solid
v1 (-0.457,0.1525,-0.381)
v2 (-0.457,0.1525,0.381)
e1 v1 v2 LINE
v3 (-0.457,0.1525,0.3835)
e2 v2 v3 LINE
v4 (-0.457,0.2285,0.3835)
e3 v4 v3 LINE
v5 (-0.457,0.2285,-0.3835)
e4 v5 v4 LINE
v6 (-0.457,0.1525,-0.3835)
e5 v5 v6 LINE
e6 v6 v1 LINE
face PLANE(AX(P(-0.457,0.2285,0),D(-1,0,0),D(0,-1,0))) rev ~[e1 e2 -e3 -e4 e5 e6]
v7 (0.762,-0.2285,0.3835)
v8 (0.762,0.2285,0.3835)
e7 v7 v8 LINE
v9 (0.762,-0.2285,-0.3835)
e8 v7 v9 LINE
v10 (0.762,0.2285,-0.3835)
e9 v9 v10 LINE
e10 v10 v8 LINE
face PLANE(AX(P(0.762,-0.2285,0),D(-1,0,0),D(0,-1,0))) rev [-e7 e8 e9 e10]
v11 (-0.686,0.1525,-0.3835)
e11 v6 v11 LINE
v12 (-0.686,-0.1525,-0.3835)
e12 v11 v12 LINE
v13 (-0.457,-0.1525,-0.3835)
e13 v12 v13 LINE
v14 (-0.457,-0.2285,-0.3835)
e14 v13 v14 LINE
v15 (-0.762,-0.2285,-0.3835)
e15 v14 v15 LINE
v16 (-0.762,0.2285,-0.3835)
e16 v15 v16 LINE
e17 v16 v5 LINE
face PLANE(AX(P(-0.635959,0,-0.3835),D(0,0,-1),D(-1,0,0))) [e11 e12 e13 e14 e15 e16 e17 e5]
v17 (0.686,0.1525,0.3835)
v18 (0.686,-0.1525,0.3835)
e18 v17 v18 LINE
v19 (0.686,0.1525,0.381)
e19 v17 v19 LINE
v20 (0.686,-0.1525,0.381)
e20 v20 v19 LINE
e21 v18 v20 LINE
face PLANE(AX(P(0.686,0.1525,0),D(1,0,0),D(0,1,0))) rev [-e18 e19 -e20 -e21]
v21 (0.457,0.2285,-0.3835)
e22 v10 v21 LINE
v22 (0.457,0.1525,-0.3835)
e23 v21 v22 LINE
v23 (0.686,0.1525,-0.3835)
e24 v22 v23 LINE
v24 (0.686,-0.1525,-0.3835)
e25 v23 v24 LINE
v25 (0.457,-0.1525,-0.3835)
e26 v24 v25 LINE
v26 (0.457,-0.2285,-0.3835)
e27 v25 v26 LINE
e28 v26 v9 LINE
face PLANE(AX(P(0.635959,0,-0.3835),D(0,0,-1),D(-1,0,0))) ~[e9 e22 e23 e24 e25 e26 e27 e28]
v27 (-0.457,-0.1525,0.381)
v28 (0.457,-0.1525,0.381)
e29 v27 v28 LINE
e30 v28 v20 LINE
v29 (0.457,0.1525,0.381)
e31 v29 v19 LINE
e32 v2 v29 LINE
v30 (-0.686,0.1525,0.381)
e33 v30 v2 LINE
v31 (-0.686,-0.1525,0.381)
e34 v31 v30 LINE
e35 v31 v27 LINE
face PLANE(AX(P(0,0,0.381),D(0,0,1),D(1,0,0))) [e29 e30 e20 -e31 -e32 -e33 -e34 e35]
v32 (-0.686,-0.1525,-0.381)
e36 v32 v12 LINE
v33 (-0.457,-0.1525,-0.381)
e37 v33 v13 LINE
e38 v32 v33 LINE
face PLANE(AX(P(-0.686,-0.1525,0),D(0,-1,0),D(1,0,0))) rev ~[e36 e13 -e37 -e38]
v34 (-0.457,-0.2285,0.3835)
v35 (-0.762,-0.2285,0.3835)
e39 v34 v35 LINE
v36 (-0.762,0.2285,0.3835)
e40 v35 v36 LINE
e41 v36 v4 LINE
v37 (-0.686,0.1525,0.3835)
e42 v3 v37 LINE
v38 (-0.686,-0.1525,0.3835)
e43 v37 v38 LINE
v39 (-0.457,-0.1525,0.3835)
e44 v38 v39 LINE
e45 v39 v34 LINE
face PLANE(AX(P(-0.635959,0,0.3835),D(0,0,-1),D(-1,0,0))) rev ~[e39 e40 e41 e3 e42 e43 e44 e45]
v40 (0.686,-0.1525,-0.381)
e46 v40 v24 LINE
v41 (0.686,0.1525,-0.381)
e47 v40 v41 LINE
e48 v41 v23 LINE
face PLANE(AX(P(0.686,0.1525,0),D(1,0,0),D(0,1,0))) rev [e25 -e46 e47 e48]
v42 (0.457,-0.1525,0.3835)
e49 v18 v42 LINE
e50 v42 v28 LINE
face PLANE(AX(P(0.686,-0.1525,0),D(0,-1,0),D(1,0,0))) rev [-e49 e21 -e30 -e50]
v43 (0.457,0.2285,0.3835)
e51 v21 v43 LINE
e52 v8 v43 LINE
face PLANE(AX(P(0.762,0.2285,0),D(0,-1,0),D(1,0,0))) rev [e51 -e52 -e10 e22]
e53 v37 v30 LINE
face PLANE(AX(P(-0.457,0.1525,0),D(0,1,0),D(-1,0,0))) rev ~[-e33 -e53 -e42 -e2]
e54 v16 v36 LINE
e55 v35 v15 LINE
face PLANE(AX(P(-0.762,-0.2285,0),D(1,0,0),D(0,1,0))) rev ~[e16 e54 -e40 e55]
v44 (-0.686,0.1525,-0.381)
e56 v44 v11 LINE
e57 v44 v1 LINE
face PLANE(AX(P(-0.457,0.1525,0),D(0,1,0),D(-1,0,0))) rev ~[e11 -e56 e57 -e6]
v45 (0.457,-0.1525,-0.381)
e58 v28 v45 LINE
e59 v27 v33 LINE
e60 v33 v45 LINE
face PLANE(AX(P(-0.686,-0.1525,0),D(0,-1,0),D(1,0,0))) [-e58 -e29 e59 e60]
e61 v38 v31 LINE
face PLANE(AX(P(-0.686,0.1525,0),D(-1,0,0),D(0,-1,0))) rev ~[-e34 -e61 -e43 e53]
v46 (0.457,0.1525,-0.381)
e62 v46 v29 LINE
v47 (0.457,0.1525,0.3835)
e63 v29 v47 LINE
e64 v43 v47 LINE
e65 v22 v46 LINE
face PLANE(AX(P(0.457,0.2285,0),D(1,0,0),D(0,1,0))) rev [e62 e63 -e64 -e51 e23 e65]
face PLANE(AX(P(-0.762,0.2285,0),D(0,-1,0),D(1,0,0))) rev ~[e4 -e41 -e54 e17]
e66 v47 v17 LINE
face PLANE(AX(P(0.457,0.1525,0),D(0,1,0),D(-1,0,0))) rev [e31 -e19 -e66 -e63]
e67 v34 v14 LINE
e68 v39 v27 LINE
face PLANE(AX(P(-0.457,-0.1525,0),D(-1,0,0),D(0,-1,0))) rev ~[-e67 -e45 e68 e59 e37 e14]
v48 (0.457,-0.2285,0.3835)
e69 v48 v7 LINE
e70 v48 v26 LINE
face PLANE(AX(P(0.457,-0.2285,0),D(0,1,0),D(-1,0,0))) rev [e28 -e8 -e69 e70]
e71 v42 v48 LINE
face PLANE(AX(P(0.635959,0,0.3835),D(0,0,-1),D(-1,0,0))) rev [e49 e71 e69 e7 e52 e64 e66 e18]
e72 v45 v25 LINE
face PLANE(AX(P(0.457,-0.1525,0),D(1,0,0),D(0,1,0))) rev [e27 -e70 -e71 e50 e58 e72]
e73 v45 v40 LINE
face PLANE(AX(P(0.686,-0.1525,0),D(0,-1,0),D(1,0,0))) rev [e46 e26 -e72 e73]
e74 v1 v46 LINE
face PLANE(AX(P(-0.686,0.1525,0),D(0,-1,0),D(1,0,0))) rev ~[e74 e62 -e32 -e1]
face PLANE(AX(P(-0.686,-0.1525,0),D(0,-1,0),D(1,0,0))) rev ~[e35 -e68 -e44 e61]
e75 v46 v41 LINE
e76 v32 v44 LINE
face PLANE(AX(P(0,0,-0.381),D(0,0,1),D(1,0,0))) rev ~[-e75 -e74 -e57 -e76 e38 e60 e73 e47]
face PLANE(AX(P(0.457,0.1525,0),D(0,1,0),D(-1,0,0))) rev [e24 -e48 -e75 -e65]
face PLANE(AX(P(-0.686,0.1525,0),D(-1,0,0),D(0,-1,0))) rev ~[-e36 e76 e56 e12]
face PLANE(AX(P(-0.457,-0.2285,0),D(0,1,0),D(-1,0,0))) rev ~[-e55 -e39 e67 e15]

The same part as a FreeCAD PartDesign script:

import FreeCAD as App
import Part
import Sketcher

V = App.Vector
Q = App.Units.Quantity


def add_polygon(sketch, points):
    """Adds a closed chain of lines whose ends are joined by coincident constraints."""
    first, n = sketch.GeometryCount, len(points)
    for a, b in zip(points, points[1:] + points[:1]):
        sketch.addGeometry(Part.LineSegment(App.Vector(*a, 0), App.Vector(*b, 0)), False)
    for i in range(n):
        sketch.addConstraint(Sketcher.Constraint("Coincident", first + i, 2, first + (i + 1) % n, 1))

doc = App.newDocument("Part")
body = doc.addObject("PartDesign::Body", "Body")

# Sketch on XY plane
sketch1 = doc.addObject("Sketcher::SketchObject", "Sketch")
body.addObject(sketch1)
sketch1.AttachmentSupport = (doc.XY_Plane, [""])
sketch1.MapMode = "FlatFace"
add_polygon(sketch1, [(-0.69, 0.15), (-0.69, -0.15), (0.69, -0.15), (0.69, 0.15)])  # lines 0-3
sketch1.addConstraint(Sketcher.Constraint("Vertical", 0))
sketch1.addConstraint(Sketcher.Constraint("Horizontal", 1))
sketch1.addConstraint(Sketcher.Constraint("Vertical", 2))
sketch1.addConstraint(Sketcher.Constraint("Horizontal", 3))
sketch1.addConstraint(Sketcher.Constraint("Symmetric", 0, 2, 2, 2, -1, 1))
sketch1.addConstraint(Sketcher.Constraint("DistanceX", 1, 1, 1, 2, Q("1.372 mm")))
sketch1.addConstraint(Sketcher.Constraint("DistanceY", 0, 2, 0, 1, Q("0.305 mm")))
pad1 = doc.addObject("PartDesign::Pad", "Pad")
body.addObject(pad1)
pad1.Profile = sketch1
pad1.Length = Q("0.03 in")
pad1.Midplane = True

# Sketch on XY plane
sketch2 = doc.addObject("Sketcher::SketchObject", "Sketch001")
body.addObject(sketch2)
sketch2.AttachmentSupport = (doc.XY_Plane, [""])
sketch2.MapMode = "FlatFace"
add_polygon(sketch2, [(-0.69, 0.15), (-0.46, 0.15), (-0.46, 0.23), (-0.76, 0.23), (-0.76, -0.23), (-0.46, -0.23), (-0.46, -0.15), (-0.69, -0.15)])  # lines 0-7
sketch2.addConstraint(Sketcher.Constraint("Horizontal", 0))
sketch2.addConstraint(Sketcher.Constraint("Vertical", 1))
sketch2.addConstraint(Sketcher.Constraint("Horizontal", 2))
sketch2.addConstraint(Sketcher.Constraint("Vertical", 3))
sketch2.addConstraint(Sketcher.Constraint("Horizontal", 4))
sketch2.addConstraint(Sketcher.Constraint("Vertical", 5))
sketch2.addConstraint(Sketcher.Constraint("Horizontal", 6))
sketch2.addConstraint(Sketcher.Constraint("Vertical", 7))
sketch2.addConstraint(Sketcher.Constraint("Symmetric", 1, 2, 4, 2, -1))
sketch2.addConstraint(Sketcher.Constraint("Equal", 1, 5))
sketch2.addConstraint(Sketcher.Constraint("Equal", 4, 7))
sketch2.addConstraint(Sketcher.Constraint("DistanceX", 2, 2, -1, 1, Q("0.03 in")))
sketch2.addConstraint(Sketcher.Constraint("DistanceY", 3, 2, 0, 2, Q("0.015 in")))
sketch2.addConstraint(Sketcher.Constraint("DistanceX", 0, 1, 0, 2, Q("0.229 mm")))
sketch2.addConstraint(Sketcher.Constraint("DistanceX", 2, 2, 2, 1, Q("0.305 mm")))
pad2 = doc.addObject("PartDesign::Pad", "Pad001")
body.addObject(pad2)
pad2.Profile = sketch2
pad2.Length = 0.767
pad2.Midplane = True
doc.recompute()

mirrored = doc.addObject("PartDesign::Mirrored", "Mirrored")
body.addObject(mirrored)
mirrored.Originals = [pad2]
mirrored.MirrorPlane = (doc.YZ_Plane, [""])
body.Tip = mirrored

doc.recompute()
